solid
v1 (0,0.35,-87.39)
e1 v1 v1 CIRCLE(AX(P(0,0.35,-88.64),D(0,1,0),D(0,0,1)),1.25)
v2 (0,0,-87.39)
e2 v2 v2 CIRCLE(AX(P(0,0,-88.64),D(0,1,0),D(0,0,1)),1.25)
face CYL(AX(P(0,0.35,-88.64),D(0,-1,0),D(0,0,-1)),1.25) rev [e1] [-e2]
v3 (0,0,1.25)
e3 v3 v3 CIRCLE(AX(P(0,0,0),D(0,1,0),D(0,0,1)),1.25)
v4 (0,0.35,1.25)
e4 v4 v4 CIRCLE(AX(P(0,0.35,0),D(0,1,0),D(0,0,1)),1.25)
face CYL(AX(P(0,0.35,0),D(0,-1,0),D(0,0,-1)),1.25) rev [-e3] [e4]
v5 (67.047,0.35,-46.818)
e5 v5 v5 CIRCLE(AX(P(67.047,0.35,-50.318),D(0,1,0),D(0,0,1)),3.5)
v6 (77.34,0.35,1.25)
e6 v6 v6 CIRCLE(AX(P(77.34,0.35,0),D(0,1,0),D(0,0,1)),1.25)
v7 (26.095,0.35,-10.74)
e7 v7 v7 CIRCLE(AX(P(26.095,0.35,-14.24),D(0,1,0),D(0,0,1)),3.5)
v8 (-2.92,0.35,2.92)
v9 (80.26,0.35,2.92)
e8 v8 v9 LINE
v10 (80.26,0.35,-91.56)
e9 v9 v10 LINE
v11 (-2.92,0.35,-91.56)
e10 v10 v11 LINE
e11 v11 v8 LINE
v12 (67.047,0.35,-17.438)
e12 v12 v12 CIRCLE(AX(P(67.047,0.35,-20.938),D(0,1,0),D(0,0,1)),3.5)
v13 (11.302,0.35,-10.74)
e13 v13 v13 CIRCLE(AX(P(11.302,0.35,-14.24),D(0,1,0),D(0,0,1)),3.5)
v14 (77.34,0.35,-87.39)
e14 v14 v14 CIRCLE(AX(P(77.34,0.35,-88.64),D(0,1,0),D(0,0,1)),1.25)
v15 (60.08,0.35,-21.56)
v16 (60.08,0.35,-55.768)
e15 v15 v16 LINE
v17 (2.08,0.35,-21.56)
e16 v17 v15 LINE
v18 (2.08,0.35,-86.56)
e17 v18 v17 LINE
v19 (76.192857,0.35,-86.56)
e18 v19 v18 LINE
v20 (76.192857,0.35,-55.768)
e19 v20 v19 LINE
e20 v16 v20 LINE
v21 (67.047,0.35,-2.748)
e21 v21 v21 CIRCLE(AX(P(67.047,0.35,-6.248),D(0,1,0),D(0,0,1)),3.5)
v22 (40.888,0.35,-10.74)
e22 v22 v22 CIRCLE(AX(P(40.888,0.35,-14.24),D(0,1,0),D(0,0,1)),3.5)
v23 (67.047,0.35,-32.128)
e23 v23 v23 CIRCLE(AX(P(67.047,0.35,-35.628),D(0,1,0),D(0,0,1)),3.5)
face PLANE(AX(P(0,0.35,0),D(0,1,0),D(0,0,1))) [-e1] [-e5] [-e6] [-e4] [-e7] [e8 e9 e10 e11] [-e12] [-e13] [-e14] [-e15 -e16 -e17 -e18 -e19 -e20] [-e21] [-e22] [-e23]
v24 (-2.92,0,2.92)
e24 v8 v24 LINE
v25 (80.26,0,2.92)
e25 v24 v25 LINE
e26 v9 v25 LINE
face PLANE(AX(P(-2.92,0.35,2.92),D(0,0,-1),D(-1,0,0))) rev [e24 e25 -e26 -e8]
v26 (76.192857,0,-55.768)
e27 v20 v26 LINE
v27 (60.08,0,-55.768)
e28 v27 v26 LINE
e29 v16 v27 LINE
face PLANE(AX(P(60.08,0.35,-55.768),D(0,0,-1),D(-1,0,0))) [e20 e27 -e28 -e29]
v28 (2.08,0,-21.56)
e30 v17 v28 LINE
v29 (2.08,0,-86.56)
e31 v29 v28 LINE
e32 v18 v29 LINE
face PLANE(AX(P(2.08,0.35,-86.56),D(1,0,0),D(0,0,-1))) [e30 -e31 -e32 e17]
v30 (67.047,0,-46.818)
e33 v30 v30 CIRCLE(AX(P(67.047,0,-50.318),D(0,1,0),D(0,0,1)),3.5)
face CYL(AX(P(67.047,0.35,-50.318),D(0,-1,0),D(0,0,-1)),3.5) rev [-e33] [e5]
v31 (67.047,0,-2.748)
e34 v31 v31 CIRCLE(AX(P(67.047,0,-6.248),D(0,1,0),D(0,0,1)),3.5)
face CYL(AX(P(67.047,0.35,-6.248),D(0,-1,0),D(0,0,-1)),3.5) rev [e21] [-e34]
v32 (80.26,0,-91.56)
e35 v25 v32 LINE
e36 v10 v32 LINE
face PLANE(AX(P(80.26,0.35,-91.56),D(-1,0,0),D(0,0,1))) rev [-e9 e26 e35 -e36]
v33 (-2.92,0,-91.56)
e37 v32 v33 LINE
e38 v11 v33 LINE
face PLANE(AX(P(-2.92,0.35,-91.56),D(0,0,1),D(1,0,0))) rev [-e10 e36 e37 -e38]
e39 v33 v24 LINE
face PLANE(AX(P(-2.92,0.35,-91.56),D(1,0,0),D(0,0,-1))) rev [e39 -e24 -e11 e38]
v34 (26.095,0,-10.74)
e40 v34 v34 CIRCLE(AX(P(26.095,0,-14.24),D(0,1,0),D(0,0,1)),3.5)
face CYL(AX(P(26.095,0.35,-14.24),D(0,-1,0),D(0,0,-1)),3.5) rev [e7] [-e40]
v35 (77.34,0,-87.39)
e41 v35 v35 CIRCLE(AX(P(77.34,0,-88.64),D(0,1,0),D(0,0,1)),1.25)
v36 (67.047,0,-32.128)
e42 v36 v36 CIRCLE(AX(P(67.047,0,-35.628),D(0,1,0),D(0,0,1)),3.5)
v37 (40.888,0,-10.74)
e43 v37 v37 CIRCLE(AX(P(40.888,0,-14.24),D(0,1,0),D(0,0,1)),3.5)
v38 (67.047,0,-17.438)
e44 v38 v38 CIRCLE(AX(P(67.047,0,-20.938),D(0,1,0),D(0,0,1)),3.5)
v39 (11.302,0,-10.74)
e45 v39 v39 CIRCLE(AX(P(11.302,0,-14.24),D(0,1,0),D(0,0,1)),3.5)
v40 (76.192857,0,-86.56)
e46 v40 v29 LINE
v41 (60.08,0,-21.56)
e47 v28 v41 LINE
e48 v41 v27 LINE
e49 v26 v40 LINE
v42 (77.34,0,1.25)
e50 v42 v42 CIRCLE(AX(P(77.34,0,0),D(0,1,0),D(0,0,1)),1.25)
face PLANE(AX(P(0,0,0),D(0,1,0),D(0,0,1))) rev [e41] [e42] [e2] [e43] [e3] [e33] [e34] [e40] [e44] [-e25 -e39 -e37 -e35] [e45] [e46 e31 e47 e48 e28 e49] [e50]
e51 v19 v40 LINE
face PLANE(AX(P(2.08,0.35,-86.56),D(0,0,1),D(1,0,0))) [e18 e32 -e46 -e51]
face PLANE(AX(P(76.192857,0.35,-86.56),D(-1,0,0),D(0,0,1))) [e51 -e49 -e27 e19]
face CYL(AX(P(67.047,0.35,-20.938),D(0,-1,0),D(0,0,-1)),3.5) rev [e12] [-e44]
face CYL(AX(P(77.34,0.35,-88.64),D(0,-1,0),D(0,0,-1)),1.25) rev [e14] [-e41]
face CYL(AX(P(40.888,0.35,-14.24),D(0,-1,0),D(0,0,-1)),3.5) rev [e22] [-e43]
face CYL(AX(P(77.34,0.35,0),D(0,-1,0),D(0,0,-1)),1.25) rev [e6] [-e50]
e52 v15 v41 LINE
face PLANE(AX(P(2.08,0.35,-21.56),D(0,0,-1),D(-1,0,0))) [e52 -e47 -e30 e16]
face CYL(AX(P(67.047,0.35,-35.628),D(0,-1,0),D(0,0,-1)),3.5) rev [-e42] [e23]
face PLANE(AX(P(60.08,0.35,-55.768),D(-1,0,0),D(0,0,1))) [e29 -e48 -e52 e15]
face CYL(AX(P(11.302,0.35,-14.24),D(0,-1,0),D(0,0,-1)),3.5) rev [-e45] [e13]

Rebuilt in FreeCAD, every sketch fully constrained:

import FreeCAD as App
import Part
import Sketcher

doc = App.newDocument("Part")
body = doc.addObject("PartDesign::Body", "Body")

# Sketch on XZ plane
sketch1 = body.newObject("Sketcher::SketchObject", "Sketch")
sketch1.AttachmentSupport = (doc.getObject("XZ_Plane"), [""])
sketch1.MapMode = "FlatFace"
sketch1.addGeometry(Part.LineSegment(App.Vector(-2.9, -91.6, 0), App.Vector(-2.9, 2.9, 0)), False)
sketch1.addGeometry(Part.LineSegment(App.Vector(-2.9, 2.9, 0), App.Vector(80.3, 2.9, 0)), False)
sketch1.addGeometry(Part.LineSegment(App.Vector(80.3, 2.9, 0), App.Vector(80.3, -91.6, 0)), False)
sketch1.addGeometry(Part.LineSegment(App.Vector(80.3, -91.6, 0), App.Vector(-2.9, -91.6, 0)), False)
sketch1.addGeometry(Part.Circle(App.Vector(0, 0, 0), App.Vector(0, 0, 1), 1.2), False)
sketch1.addGeometry(Part.Circle(App.Vector(11.3, -14.2, 0), App.Vector(0, 0, 1), 3.5), False)
sketch1.addGeometry(Part.Circle(App.Vector(26.1, -14.2, 0), App.Vector(0, 0, 1), 3.5), False)
sketch1.addGeometry(Part.Circle(App.Vector(40.9, -14.2, 0), App.Vector(0, 0, 1), 3.5), False)
sketch1.addGeometry(Part.Circle(App.Vector(67, -6.2, 0), App.Vector(0, 0, 1), 3.5), False)
sketch1.addGeometry(Part.Circle(App.Vector(77.3, 0, 0), App.Vector(0, 0, 1), 1.2), False)
sketch1.addGeometry(Part.Circle(App.Vector(67, -20.9, 0), App.Vector(0, 0, 1), 3.5), False)
sketch1.addGeometry(Part.Circle(App.Vector(67, -35.6, 0), App.Vector(0, 0, 1), 3.5), False)
sketch1.addGeometry(Part.Circle(App.Vector(0, -88.6, 0), App.Vector(0, 0, 1), 1.2), False)
sketch1.addGeometry(Part.LineSegment(App.Vector(2.1, -21.6, 0), App.Vector(2.1, -86.6, 0)), False)
sketch1.addGeometry(Part.LineSegment(App.Vector(2.1, -86.6, 0), App.Vector(76.2, -86.6, 0)), False)
sketch1.addGeometry(Part.LineSegment(App.Vector(76.2, -86.6, 0), App.Vector(76.2, -55.8, 0)), False)
sketch1.addGeometry(Part.LineSegment(App.Vector(76.2, -55.8, 0), App.Vector(60.1, -55.8, 0)), False)
sketch1.addGeometry(Part.LineSegment(App.Vector(60.1, -55.8, 0), App.Vector(60.1, -21.6, 0)), False)
sketch1.addGeometry(Part.LineSegment(App.Vector(60.1, -21.6, 0), App.Vector(2.1, -21.6, 0)), False)
sketch1.addGeometry(Part.Circle(App.Vector(67, -50.3, 0), App.Vector(0, 0, 1), 3.5), False)
sketch1.addGeometry(Part.Circle(App.Vector(77.3, -88.6, 0), App.Vector(0, 0, 1), 1.2), False)
sketch1.addConstraint(Sketcher.Constraint("Coincident", 0, 2, 1, 1))
sketch1.addConstraint(Sketcher.Constraint("Coincident", 1, 2, 2, 1))
sketch1.addConstraint(Sketcher.Constraint("Coincident", 2, 2, 3, 1))
sketch1.addConstraint(Sketcher.Constraint("Coincident", 3, 2, 0, 1))
sketch1.addConstraint(Sketcher.Constraint("Coincident", 13, 2, 14, 1))
sketch1.addConstraint(Sketcher.Constraint("Coincident", 14, 2, 15, 1))
sketch1.addConstraint(Sketcher.Constraint("Coincident", 15, 2, 16, 1))
sketch1.addConstraint(Sketcher.Constraint("Coincident", 16, 2, 17, 1))
sketch1.addConstraint(Sketcher.Constraint("Coincident", 17, 2, 18, 1))
sketch1.addConstraint(Sketcher.Constraint("Coincident", 18, 2, 13, 1))
sketch1.addConstraint(Sketcher.Constraint("Vertical", 0))
sketch1.addConstraint(Sketcher.Constraint("Horizontal", 1))
sketch1.addConstraint(Sketcher.Constraint("Vertical", 2))
sketch1.addConstraint(Sketcher.Constraint("Horizontal", 3))
sketch1.addConstraint(Sketcher.Constraint("Vertical", 13))
sketch1.addConstraint(Sketcher.Constraint("Horizontal", 14))
sketch1.addConstraint(Sketcher.Constraint("Vertical", 15))
sketch1.addConstraint(Sketcher.Constraint("Horizontal", 16))
sketch1.addConstraint(Sketcher.Constraint("Vertical", 17))
sketch1.addConstraint(Sketcher.Constraint("Horizontal", 18))
sketch1.addConstraint(Sketcher.Constraint("Coincident", 4, 3, -1, 1))
sketch1.addConstraint(Sketcher.Constraint("Equal", 5, 6))
sketch1.addConstraint(Sketcher.Constraint("Equal", 6, 7))
sketch1.addConstraint(Sketcher.Constraint("Equal", 7, 8))
sketch1.addConstraint(Sketcher.Constraint("Equal", 4, 9))
sketch1.addConstraint(Sketcher.Constraint("Equal", 8, 10))
sketch1.addConstraint(Sketcher.Constraint("Equal", 10, 11))
sketch1.addConstraint(Sketcher.Constraint("Equal", 9, 12))
sketch1.addConstraint(Sketcher.Constraint("Equal", 11, 19))
sketch1.addConstraint(Sketcher.Constraint("Equal", 12, 20))
sketch1.addConstraint(Sketcher.Constraint("PointOnObject", 9, 3, -1))
sketch1.addConstraint(Sketcher.Constraint("PointOnObject", 12, 3, -2))
sketch1.addConstraint(Sketcher.Constraint("Horizontal", 5, 3, 6, 3))
sketch1.addConstraint(Sketcher.Constraint("Horizontal", 6, 3, 7, 3))
sketch1.addConstraint(Sketcher.Constraint("Horizontal", 12, 3, 20, 3))
sketch1.addConstraint(Sketcher.Constraint("Vertical", 8, 3, 10, 3))
sketch1.addConstraint(Sketcher.Constraint("Vertical", 10, 3, 11, 3))
sketch1.addConstraint(Sketcher.Constraint("Vertical", 11, 3, 19, 3))
sketch1.addConstraint(Sketcher.Constraint("Vertical", 9, 3, 20, 3))
sketch1.addConstraint(Sketcher.Constraint("Diameter", 5, 7.0))
sketch1.addConstraint(Sketcher.Constraint("Diameter", 4, 2.5))
sketch1.addConstraint(Sketcher.Constraint("DistanceX", 18, 2, 18, 1, 58.0))
sketch1.addConstraint(Sketcher.Constraint("DistanceY", 13, 2, 13, 1, 65.0))
sketch1.addConstraint(Sketcher.Constraint("DistanceX", 3, 2, 13, 2, 5.0))
sketch1.addConstraint(Sketcher.Constraint("DistanceY", 3, 2, 13, 2, 5.0))
sketch1.addConstraint(Sketcher.Constraint("DistanceX", 1, 1, 1, 2, 83.18))
sketch1.addConstraint(Sketcher.Constraint("DistanceY", 0, 1, 0, 2, 94.48))
sketch1.addConstraint(Sketcher.Constraint("DistanceY", 12, 3, 5, 3, 74.4))
sketch1.addConstraint(Sketcher.Constraint("DistanceY", 15, 1, 15, 2, 30.792))
sketch1.addConstraint(Sketcher.Constraint("DistanceY", 5, 3, -1, 1, 14.24))
sketch1.addConstraint(Sketcher.Constraint("DistanceX", -1, 1, 9, 3, 77.34))
sketch1.addConstraint(Sketcher.Constraint("DistanceX", 0, 2, -1, 1, 2.92))
sketch1.addConstraint(Sketcher.Constraint("DistanceY", -1, 1, 0, 2, 2.92))
sketch1.addConstraint(Sketcher.Constraint("DistanceY", 10, 3, 8, 3, 14.69))
sketch1.addConstraint(Sketcher.Constraint("DistanceY", 11, 3, 10, 3, 14.69))
sketch1.addConstraint(Sketcher.Constraint("DistanceY", 19, 3, 11, 3, 14.69))
sketch1.addConstraint(Sketcher.Constraint("DistanceY", 15, 2, 19, 3, 5.45))
sketch1.addConstraint(Sketcher.Constraint("DistanceX", -1, 1, 5, 3, 11.302))
sketch1.addConstraint(Sketcher.Constraint("DistanceX", -1, 1, 6, 3, 26.095))
sketch1.addConstraint(Sketcher.Constraint("DistanceX", -1, 1, 7, 3, 40.888))
sketch1.addConstraint(Sketcher.Constraint("DistanceX", -1, 1, 8, 3, 67.047))
sketch1.addConstraint(Sketcher.Constraint("DistanceX", 14, 1, 14, 2, 74.112857))
pad1 = body.newObject("PartDesign::Pad", "Pad")
pad1.Profile = sketch1
pad1.Length = 0.35
pad1.Reversed = True

doc.recompute()
